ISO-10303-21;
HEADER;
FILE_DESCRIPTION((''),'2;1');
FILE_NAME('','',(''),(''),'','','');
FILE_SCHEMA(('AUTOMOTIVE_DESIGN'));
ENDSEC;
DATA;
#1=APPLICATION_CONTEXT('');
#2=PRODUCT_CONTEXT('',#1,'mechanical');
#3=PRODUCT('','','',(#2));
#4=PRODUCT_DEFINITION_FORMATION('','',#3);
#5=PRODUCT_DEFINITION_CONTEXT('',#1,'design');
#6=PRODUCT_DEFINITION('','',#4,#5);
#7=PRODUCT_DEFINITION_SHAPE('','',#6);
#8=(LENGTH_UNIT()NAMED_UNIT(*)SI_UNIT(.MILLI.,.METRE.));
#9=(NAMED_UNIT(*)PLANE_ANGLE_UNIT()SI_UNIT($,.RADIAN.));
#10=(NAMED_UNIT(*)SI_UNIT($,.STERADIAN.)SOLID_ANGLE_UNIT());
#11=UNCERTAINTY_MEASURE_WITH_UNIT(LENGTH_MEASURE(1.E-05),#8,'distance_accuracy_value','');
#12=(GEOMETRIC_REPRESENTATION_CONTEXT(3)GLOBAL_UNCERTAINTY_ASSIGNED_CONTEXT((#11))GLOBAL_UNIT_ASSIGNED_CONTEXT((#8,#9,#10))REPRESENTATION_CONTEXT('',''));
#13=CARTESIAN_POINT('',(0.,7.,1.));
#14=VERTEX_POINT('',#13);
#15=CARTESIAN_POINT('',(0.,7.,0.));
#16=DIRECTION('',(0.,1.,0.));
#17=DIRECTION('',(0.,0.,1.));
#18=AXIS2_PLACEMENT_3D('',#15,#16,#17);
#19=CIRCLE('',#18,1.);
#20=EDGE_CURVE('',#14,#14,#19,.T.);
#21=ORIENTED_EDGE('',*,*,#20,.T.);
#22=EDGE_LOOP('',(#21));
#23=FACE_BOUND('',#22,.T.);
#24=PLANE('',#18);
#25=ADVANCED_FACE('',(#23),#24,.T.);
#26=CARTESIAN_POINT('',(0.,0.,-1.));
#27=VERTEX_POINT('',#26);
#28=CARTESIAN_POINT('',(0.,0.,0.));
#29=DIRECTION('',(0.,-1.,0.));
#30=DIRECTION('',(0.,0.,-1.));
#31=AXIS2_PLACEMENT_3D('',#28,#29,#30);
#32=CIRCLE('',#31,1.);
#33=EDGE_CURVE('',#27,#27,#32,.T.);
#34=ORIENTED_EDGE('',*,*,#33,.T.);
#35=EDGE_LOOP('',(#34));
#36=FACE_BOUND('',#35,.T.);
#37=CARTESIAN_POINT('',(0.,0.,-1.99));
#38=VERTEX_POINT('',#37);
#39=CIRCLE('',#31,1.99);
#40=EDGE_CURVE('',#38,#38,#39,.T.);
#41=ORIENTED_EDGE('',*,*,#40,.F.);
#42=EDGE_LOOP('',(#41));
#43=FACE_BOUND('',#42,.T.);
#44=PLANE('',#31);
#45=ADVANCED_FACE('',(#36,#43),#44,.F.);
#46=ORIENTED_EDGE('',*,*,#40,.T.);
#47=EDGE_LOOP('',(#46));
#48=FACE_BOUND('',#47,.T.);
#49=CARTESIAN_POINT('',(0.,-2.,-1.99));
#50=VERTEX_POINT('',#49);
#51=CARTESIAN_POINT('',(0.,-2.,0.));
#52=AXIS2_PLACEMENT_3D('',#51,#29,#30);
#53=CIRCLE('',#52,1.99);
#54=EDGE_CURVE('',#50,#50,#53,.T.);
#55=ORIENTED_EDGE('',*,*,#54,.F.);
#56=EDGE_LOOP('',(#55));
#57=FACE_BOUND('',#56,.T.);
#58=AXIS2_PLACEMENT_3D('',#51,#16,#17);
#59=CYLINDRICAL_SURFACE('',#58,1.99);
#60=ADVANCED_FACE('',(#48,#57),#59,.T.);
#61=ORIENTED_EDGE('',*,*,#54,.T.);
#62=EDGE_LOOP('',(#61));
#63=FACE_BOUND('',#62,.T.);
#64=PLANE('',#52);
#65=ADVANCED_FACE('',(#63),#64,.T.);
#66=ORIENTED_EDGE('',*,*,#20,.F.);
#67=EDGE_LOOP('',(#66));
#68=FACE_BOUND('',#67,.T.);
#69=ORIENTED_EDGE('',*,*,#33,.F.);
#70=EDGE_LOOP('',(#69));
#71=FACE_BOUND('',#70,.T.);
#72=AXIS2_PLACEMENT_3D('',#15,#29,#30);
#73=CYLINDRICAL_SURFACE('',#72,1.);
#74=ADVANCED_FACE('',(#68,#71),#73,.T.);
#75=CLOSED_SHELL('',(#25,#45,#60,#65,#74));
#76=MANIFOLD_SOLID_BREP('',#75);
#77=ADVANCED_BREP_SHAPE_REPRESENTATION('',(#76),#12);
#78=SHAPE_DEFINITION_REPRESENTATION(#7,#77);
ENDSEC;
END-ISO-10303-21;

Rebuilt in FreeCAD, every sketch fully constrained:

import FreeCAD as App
import Part
import Sketcher
Q = App.Units.Quantity

doc = App.newDocument("Part")
body = doc.addObject("PartDesign::Body", "Body")

# Sketch on XZ plane
sketch1 = body.newObject("Sketcher::SketchObject", "Sketch")
sketch1.AttachmentSupport = (doc.getObject("XZ_Plane"), [""])
sketch1.MapMode = "FlatFace"
sketch1.addGeometry(Part.Circle(App.Vector(0, 0, 0), App.Vector(0, 0, 1), 1), False)
sketch1.addConstraint(Sketcher.Constraint("Coincident", 0, 3, -1, 1))
sketch1.addConstraint(Sketcher.Constraint("Diameter", 0, Q("2 mm")))
pad1 = body.newObject("PartDesign::Pad", "Pad")
pad1.Profile = sketch1
pad1.Length = 7
pad1.Reversed = True

# Sketch on XZ plane
sketch2 = body.newObject("Sketcher::SketchObject", "Sketch001")
sketch2.AttachmentSupport = (doc.getObject("XZ_Plane"), [""])
sketch2.MapMode = "FlatFace"
sketch2.addGeometry(Part.Circle(App.Vector(0, 0, 0), App.Vector(0, 0, 1), 2), False)
sketch2.addConstraint(Sketcher.Constraint("Coincident", 0, 3, -1, 1))
sketch2.addConstraint(Sketcher.Constraint("Diameter", 0, Q("3.98 mm")))
pad2 = body.newObject("PartDesign::Pad", "Pad001")
pad2.Profile = sketch2
pad2.Length = 2

doc.recompute()
